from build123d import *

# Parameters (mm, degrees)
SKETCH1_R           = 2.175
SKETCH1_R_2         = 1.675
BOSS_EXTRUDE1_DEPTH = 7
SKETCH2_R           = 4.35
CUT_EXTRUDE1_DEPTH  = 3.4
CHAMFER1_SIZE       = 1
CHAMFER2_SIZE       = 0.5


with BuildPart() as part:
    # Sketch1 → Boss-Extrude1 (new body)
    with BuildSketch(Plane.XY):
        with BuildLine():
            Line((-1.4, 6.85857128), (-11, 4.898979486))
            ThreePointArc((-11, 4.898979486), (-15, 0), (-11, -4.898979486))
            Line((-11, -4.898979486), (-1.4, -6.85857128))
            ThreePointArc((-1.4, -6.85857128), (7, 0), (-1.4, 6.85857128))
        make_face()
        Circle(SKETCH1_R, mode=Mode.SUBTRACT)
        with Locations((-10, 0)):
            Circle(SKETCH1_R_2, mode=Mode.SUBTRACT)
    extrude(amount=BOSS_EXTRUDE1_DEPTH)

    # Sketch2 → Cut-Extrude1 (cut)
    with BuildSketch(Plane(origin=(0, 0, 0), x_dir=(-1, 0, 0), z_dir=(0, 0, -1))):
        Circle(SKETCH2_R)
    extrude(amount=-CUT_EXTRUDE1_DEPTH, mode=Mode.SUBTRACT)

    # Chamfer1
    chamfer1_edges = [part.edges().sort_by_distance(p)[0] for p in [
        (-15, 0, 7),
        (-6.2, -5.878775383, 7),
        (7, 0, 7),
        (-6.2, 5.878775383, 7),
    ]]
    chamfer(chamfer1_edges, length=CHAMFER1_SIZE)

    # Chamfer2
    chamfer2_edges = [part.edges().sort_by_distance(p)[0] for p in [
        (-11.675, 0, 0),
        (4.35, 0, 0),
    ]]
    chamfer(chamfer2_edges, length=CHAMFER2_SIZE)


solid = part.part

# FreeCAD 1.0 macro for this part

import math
import FreeCAD as App
import Part
import Sketcher


def edges_at(feature, points):
    """Names of the edges that pass closest to the given points."""
    edges = feature.Shape.Edges
    near = lambda p: min(range(len(edges)), key=lambda i: edges[i].distToShape(Part.Vertex(*p))[0])
    return sorted({f"Edge{near(p) + 1}" for p in points})

doc = App.newDocument("Part")
params = doc.addObject("Spreadsheet::Sheet", "Params")
for row, (alias, value) in enumerate([
    ("sketch1_radius", "5 mm"),
    ("sketch1_radius2", "7 mm"),
    ("sketch1_diameter", "3.35 mm"),
    ("sketch1_diameter2", "4.35 mm"),
    ("pad1_length", "7 mm"),
    ("sketch2_diameter", "8.7 mm"),
    ("pocket1_length", "3.4 mm"),
    ("chamfer_size", "1 mm"),
    ("chamfer2_size", "0.5 mm"),
], start=1):
    params.set(f"A{row}", alias)
    params.set(f"B{row}", "=" + value)
    params.setAlias(f"B{row}", alias)

body = doc.addObject("PartDesign::Body", "Body")

# Sketch on XY plane
sketch1 = body.newObject("Sketcher::SketchObject", "Sketch")
sketch1.AttachmentSupport = (doc.getObject("XY_Plane"), [""])
sketch1.MapMode = "FlatFace"
sketch1.addGeometry([
    Part.LineSegment(App.Vector(-1.4, 6.9, 0), App.Vector(-11, 4.9, 0)),  # 0
    Part.ArcOfCircle(Part.Circle(App.Vector(-10, 0, 0), App.Vector(0, 0, 1), 5), math.radians(102), math.radians(258)),  # 1
    Part.LineSegment(App.Vector(-11, -4.9, 0), App.Vector(-1.4, -6.9, 0)),  # 2
    Part.ArcOfCircle(Part.Circle(App.Vector(0, 0, 0), App.Vector(0, 0, 1), 7), math.radians(-102), math.radians(102)),  # 3
    Part.Circle(App.Vector(-10, 0, 0), App.Vector(0, 0, 1), 1.7),  # 4
    Part.Circle(App.Vector(0, 0, 0), App.Vector(0, 0, 1), 2.2),  # 5
], False)
sketch1.addConstraint([
    Sketcher.Constraint("Tangent", 0, 2, 1, 1),
    Sketcher.Constraint("Tangent", 1, 2, 2, 1),
    Sketcher.Constraint("Tangent", 2, 2, 3, 1),
    Sketcher.Constraint("Tangent", 3, 2, 0, 1),
    Sketcher.Constraint("Coincident", 3, 3, -1, 1),
    Sketcher.Constraint("Coincident", 5, 3, -1, 1),
    Sketcher.Constraint("Coincident", 4, 3, 1, 3),
    Sketcher.Constraint("PointOnObject", 1, 3, -1),
    Sketcher.Constraint("Radius", 1, 5.0),
    Sketcher.Constraint("Radius", 3, 7.0),
    Sketcher.Constraint("Diameter", 4, 3.35),
    Sketcher.Constraint("Diameter", 5, 4.35),
    Sketcher.Constraint("DistanceX", 1, 3, -1, 1, 10.0),
])
sketch1.setExpression("Constraints[8]", "Params.sketch1_radius")
sketch1.setExpression("Constraints[9]", "Params.sketch1_radius2")
sketch1.setExpression("Constraints[10]", "Params.sketch1_diameter")
sketch1.setExpression("Constraints[11]", "Params.sketch1_diameter2")
pad1 = body.newObject("PartDesign::Pad", "Pad")
pad1.Profile = sketch1
pad1.setExpression("Length", "Params.pad1_length")

# Sketch on XY plane
sketch2 = body.newObject("Sketcher::SketchObject", "Sketch001")
sketch2.AttachmentSupport = (doc.getObject("XY_Plane"), [""])
sketch2.MapMode = "FlatFace"
sketch2.addGeometry(Part.Circle(App.Vector(0, 0, 0), App.Vector(0, 0, 1), 4.3), False)
sketch2.addConstraint([
    Sketcher.Constraint("Coincident", 0, 3, -1, 1),
    Sketcher.Constraint("Diameter", 0, 8.7),
])
sketch2.setExpression("Constraints[1]", "Params.sketch2_diameter")
pocket1 = body.newObject("PartDesign::Pocket", "Pocket")
pocket1.Profile = sketch2
pocket1.setExpression("Length", "Params.pocket1_length")
pocket1.Reversed = True
doc.recompute()

chamfer = body.newObject("PartDesign::Chamfer", "Chamfer")
chamfer.Base = (pocket1, edges_at(pocket1, [
    (-15, 0, 7),
    (-6.2, -5.879, 7),
    (7, 0, 7),
    (-6.2, 5.879, 7),
]))
chamfer.setExpression("Size", "Params.chamfer_size")
doc.recompute()

chamfer2 = body.newObject("PartDesign::Chamfer", "Chamfer001")
chamfer2.Base = (chamfer, edges_at(chamfer, [(-11.675, 0, 0), (4.35, 0, 0)]))
chamfer2.setExpression("Size", "Params.chamfer2_size")

doc.recompute()
